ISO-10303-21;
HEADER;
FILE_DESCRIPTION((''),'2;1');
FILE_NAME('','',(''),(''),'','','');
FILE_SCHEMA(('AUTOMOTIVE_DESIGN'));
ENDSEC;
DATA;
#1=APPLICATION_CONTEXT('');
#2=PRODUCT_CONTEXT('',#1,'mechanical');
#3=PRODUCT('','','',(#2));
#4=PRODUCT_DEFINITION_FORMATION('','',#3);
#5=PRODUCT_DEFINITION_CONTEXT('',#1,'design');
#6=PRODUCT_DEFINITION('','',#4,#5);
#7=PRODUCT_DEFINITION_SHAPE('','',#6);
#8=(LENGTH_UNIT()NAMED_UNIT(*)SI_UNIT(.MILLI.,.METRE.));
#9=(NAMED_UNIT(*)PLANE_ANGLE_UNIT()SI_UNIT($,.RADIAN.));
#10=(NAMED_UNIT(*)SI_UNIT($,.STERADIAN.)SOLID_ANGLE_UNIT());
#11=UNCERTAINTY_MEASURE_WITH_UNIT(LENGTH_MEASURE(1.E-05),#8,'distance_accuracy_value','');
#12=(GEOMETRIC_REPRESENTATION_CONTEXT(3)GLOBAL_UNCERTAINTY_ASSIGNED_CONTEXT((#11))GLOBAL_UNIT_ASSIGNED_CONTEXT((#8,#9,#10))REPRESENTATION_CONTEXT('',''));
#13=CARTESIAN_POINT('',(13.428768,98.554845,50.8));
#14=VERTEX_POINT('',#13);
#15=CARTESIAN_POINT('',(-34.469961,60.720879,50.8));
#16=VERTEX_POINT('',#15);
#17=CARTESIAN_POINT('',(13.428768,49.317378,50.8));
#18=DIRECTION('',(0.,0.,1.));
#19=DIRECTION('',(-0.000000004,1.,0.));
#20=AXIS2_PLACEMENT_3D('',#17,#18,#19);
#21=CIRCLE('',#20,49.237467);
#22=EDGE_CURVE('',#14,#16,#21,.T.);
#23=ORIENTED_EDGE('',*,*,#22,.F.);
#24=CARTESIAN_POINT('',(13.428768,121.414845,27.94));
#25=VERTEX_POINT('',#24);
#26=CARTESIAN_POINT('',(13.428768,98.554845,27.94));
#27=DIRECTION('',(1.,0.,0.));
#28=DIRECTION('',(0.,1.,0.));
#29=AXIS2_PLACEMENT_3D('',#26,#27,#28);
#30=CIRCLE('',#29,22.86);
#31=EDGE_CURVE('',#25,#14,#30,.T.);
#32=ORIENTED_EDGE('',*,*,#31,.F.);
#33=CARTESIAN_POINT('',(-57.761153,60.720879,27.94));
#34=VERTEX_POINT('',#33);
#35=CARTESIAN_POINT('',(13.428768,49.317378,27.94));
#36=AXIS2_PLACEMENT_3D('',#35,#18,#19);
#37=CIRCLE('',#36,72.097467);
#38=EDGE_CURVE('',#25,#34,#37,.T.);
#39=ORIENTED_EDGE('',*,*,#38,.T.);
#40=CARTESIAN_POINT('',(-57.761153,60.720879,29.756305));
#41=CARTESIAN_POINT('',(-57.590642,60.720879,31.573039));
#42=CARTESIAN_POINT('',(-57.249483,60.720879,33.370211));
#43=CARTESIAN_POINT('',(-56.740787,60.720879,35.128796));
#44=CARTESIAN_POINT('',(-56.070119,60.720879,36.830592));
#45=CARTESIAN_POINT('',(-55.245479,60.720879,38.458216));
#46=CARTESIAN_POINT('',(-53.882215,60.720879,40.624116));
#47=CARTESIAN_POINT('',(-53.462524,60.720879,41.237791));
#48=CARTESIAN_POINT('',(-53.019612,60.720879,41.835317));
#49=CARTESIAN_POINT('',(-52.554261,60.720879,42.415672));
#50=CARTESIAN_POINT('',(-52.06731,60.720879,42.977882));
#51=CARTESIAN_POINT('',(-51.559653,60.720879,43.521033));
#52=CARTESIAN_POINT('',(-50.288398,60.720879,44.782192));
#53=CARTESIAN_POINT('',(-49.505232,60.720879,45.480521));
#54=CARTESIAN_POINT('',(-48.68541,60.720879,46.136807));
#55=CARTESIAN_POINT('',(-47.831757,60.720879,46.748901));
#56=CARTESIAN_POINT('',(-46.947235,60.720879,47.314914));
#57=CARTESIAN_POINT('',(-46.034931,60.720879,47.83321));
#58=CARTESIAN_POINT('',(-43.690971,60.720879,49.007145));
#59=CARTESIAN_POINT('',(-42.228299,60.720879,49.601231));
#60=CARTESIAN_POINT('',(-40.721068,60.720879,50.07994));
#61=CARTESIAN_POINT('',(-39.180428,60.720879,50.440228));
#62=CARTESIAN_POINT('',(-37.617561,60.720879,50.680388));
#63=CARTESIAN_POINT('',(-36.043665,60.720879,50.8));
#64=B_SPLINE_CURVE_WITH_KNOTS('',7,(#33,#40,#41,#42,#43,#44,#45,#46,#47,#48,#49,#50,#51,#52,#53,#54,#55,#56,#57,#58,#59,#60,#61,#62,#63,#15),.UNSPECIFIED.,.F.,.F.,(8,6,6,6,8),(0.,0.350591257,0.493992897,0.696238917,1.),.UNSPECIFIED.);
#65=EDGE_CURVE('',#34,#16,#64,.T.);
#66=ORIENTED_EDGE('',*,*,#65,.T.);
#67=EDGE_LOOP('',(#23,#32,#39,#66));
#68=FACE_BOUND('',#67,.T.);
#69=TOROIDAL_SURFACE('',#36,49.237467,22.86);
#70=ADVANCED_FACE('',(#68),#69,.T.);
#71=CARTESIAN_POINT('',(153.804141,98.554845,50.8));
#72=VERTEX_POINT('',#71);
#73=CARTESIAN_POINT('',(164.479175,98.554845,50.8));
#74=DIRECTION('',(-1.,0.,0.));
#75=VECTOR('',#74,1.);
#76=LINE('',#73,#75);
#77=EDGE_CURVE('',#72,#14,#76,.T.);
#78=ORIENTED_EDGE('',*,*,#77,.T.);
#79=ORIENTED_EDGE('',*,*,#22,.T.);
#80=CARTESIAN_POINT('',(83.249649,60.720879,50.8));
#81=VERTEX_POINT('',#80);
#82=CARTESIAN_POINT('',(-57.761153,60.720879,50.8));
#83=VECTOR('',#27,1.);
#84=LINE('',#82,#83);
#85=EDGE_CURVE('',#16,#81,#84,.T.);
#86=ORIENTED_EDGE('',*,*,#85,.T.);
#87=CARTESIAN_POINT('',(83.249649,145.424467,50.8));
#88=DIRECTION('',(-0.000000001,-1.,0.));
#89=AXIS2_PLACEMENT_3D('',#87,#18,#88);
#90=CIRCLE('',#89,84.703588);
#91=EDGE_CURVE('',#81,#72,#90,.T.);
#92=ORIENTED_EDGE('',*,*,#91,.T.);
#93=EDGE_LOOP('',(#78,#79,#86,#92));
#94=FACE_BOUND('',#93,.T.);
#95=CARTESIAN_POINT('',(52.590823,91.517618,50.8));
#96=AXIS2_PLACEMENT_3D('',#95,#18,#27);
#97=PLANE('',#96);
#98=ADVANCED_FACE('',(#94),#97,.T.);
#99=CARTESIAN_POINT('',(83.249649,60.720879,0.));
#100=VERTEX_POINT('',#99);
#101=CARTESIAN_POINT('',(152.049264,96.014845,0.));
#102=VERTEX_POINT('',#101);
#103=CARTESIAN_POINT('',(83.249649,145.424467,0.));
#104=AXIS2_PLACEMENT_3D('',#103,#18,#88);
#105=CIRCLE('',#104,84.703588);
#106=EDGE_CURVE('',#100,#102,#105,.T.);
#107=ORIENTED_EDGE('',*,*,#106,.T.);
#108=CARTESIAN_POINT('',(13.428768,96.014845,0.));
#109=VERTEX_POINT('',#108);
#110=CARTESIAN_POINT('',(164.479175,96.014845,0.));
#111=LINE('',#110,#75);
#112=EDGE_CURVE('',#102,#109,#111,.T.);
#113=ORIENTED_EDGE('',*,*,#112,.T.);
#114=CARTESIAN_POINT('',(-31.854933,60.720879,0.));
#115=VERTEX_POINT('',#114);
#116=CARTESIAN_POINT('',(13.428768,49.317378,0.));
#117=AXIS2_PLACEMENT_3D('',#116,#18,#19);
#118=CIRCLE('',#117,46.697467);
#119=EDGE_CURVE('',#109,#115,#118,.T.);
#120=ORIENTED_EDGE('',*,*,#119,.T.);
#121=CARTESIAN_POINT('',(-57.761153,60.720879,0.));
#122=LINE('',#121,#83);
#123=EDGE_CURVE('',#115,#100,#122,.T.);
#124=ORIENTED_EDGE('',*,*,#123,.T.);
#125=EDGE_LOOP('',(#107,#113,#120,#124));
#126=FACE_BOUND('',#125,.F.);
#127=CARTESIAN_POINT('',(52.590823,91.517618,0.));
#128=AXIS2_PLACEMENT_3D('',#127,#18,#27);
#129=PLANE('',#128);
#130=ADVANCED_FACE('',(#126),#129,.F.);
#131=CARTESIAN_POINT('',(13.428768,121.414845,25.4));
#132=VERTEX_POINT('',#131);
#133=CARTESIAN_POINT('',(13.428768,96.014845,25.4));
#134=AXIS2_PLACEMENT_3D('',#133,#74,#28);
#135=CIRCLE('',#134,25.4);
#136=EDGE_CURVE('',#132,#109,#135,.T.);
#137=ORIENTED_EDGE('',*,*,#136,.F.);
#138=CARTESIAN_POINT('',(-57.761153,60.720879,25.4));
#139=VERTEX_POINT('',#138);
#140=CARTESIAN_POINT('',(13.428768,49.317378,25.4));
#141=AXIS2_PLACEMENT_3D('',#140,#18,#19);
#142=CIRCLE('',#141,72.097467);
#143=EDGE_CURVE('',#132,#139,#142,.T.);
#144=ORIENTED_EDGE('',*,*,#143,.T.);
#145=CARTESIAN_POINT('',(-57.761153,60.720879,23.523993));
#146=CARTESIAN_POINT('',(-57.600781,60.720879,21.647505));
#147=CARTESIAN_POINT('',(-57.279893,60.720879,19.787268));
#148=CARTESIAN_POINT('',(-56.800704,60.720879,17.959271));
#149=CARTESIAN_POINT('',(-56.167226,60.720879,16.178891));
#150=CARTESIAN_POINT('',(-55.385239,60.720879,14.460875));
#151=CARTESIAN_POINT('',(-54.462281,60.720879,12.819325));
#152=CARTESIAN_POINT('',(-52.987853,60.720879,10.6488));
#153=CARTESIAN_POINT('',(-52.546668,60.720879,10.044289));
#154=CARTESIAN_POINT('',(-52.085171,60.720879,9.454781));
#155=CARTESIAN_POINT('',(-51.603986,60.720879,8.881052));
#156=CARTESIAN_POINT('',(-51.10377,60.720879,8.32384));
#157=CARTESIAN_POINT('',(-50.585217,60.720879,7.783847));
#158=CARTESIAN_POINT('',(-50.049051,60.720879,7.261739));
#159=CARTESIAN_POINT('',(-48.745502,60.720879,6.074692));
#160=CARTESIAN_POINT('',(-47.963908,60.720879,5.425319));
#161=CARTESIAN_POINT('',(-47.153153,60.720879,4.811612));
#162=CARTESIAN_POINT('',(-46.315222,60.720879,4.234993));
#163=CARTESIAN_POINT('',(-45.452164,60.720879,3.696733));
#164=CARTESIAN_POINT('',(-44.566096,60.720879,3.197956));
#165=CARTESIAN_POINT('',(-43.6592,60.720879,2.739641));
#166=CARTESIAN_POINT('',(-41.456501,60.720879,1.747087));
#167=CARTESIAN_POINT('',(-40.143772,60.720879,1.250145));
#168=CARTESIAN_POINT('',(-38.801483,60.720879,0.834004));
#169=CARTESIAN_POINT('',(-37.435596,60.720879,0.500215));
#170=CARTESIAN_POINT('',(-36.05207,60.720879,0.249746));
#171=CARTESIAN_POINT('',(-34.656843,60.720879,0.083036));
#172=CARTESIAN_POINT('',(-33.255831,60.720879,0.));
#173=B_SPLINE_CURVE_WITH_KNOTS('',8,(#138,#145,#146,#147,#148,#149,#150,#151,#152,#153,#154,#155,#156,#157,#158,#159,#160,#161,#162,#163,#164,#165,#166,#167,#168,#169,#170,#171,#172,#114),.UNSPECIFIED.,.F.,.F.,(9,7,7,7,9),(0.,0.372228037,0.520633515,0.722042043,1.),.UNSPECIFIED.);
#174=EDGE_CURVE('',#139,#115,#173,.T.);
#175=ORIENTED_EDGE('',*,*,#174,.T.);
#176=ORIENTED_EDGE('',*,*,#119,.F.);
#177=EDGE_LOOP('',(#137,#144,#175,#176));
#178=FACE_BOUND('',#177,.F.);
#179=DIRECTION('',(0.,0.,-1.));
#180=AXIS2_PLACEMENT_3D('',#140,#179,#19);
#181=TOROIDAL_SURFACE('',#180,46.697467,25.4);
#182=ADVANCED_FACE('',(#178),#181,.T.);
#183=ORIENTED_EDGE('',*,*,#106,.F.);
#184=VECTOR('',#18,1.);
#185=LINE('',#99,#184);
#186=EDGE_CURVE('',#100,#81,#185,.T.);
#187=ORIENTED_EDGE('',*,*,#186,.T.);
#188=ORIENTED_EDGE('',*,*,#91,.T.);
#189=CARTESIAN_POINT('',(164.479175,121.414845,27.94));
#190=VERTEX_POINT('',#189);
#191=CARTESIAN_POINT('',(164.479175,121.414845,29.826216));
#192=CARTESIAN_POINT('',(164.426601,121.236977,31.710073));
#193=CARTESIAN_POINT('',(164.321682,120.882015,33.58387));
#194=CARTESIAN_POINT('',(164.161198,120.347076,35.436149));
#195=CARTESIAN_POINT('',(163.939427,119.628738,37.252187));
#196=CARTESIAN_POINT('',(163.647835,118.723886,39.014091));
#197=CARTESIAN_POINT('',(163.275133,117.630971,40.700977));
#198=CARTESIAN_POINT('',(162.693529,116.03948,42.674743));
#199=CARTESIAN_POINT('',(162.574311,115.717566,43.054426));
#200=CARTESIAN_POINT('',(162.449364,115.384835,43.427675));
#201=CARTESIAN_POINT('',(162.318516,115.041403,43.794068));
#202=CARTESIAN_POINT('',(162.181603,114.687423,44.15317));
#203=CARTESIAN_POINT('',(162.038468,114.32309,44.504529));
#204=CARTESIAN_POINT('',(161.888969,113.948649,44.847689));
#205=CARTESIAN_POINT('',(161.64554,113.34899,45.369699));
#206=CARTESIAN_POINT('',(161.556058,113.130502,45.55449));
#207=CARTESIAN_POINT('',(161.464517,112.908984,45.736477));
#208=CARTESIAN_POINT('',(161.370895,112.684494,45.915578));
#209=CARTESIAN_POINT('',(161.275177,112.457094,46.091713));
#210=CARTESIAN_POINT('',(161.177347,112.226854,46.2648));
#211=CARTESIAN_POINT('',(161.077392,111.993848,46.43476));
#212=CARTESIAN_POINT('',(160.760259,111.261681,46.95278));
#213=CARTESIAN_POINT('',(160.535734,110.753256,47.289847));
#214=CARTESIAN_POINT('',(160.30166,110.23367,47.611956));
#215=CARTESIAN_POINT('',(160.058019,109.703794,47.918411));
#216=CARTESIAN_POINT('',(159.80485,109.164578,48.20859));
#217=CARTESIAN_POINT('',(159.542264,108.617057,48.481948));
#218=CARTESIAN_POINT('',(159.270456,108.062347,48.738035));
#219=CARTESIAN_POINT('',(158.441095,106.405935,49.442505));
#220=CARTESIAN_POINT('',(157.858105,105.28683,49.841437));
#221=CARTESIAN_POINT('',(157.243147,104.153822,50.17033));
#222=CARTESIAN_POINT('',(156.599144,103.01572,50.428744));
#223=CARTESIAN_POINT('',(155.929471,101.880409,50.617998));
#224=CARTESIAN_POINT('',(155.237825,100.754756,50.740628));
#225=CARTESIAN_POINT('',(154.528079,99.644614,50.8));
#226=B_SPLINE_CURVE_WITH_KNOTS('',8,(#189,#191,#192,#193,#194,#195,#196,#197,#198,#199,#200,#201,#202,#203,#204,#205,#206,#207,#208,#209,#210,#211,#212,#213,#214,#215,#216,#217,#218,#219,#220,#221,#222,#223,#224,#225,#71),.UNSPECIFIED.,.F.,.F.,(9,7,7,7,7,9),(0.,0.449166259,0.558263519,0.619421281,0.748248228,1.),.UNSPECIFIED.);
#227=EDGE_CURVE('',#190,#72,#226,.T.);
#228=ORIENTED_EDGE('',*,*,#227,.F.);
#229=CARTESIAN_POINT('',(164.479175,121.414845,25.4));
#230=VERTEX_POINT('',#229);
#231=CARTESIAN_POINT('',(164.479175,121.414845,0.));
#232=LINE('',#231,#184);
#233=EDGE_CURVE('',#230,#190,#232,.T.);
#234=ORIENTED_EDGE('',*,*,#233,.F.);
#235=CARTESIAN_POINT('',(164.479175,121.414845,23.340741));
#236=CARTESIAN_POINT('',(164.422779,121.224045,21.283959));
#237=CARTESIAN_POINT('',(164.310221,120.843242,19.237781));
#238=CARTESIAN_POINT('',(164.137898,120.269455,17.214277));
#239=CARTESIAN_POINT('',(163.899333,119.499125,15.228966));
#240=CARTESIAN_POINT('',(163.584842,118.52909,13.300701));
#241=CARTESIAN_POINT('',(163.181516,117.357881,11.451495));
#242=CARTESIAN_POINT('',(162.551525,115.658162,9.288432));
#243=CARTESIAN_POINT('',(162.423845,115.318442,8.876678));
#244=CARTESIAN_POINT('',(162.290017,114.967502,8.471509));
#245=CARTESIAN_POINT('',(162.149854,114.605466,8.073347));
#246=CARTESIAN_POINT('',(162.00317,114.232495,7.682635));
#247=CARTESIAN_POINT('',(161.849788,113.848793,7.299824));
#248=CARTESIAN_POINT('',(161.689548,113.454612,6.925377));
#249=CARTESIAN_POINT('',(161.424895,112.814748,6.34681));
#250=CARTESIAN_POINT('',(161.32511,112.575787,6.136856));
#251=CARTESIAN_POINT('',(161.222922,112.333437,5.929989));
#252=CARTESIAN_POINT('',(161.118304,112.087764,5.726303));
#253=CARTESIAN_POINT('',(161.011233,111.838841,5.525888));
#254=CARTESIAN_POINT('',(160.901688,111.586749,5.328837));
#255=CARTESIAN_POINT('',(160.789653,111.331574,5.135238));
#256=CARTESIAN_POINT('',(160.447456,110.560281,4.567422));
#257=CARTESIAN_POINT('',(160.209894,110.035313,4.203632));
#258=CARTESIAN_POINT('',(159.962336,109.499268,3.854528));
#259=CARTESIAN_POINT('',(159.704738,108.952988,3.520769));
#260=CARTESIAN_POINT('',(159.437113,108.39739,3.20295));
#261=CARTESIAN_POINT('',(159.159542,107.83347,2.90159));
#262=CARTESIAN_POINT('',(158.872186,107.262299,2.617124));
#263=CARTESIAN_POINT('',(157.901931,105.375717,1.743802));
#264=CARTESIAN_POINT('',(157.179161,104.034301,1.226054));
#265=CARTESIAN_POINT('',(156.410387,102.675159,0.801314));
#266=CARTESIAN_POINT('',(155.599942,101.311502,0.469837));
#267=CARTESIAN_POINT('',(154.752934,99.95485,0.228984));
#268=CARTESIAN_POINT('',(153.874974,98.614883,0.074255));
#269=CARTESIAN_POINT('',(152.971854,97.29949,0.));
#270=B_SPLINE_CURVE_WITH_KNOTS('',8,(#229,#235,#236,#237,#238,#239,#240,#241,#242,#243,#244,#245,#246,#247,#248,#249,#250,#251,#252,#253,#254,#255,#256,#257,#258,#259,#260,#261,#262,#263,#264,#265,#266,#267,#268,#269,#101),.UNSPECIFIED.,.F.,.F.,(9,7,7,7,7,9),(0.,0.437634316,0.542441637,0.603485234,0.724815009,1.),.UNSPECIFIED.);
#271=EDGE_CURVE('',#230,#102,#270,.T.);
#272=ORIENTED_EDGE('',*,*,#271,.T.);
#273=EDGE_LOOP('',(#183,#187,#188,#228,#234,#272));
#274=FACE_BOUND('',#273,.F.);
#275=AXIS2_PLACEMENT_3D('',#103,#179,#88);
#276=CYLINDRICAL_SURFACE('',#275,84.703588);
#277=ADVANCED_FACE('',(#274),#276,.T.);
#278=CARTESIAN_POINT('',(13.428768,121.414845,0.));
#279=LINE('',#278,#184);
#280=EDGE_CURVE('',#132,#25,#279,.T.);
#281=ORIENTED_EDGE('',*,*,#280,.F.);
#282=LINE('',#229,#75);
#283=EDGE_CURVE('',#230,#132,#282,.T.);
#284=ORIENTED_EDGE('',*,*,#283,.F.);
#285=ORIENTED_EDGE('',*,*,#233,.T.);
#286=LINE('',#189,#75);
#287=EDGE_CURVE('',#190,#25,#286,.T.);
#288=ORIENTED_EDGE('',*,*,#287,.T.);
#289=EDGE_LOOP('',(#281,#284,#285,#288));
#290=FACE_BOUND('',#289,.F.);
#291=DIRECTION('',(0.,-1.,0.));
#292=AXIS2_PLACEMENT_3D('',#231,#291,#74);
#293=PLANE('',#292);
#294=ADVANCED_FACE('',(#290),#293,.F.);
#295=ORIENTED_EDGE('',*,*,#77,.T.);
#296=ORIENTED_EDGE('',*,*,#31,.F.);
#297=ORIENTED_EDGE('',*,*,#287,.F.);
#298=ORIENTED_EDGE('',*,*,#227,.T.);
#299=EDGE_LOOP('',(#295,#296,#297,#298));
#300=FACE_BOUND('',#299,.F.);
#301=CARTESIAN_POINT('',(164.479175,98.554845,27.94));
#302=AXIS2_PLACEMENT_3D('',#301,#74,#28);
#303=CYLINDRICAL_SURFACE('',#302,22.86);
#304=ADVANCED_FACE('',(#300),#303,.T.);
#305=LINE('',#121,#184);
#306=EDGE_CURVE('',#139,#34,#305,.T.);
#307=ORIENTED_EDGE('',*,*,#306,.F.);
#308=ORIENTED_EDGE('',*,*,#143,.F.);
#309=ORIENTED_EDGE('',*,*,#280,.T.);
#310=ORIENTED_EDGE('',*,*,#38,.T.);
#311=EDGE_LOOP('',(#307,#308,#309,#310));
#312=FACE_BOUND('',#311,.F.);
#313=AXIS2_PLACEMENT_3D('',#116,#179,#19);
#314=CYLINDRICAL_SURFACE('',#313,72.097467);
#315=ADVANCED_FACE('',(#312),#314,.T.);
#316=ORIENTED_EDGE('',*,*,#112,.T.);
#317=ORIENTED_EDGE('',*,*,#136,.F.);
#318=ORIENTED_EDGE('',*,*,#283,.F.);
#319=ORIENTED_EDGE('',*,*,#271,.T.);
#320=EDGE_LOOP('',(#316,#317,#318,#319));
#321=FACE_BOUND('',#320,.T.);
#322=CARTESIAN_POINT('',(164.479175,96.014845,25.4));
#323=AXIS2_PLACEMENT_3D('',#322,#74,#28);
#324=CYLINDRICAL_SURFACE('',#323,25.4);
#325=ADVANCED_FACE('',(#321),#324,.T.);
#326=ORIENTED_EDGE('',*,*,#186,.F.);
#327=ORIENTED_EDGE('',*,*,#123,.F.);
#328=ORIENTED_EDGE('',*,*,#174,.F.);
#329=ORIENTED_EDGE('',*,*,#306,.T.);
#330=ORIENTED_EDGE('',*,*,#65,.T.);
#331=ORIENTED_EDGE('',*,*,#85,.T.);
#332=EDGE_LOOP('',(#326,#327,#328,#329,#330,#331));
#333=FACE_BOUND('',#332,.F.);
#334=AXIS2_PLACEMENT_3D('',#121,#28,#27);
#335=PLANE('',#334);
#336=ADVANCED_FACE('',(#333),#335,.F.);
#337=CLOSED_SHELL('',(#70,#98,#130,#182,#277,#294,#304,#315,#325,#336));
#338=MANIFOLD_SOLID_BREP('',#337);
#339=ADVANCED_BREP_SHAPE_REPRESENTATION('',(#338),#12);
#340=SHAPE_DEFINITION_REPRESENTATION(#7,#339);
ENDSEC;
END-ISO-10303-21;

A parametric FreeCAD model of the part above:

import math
import FreeCAD as App
import Part
import Sketcher

V = App.Vector
Q = App.Units.Quantity


def edges_at(feature, points):
    """Names of the edges that pass closest to the given points."""
    edges = feature.Shape.Edges
    near = lambda p: min(range(len(edges)), key=lambda i: edges[i].distToShape(Part.Vertex(*p))[0])
    return sorted({f"Edge{near(p) + 1}" for p in points})

doc = App.newDocument("Part")
body = doc.addObject("PartDesign::Body", "Body")

# Sketch on XY plane
sketch1 = body.newObject("Sketcher::SketchObject", "Sketch")
sketch1.AttachmentSupport = (doc.getObject("XY_Plane"), [""])
sketch1.MapMode = "FlatFace"
sketch1.addGeometry([
    Part.ArcOfCircle(Part.Circle(V(13.428768, 49.317378, 0), V(0, 0, 1), 72.097467), math.radians(90), math.radians(170.899433)),
    Part.LineSegment(V(-57.761153, 60.720879, 0), V(83.249649, 60.720879, 0)),
    Part.ArcOfCircle(Part.Circle(V(83.249649, 145.424467, 0), V(0, 0, 1), 84.703588), math.radians(-90), math.radians(-16.466495)),
    Part.LineSegment(V(164.479175, 121.414845, 0), V(13.428768, 121.414845, 0)),
], False)
sketch1.addConstraint([
    Sketcher.Constraint("Coincident", 0, 2, 1, 1),
    Sketcher.Constraint("Tangent", 1, 2, 2, 1),
    Sketcher.Constraint("Coincident", 2, 2, 3, 1),
    Sketcher.Constraint("Tangent", 3, 2, 0, 1),
    Sketcher.Constraint("Horizontal", 1),
    Sketcher.Constraint("Horizontal", 3),
    Sketcher.Constraint("Radius", 2, 84.703588),
    Sketcher.Constraint("Radius", 0, 72.097467),
    Sketcher.Constraint("DistanceY", 0, 3, 0, 2, 11.403501),
    Sketcher.Constraint("DistanceX", 0, 2, 1, 2, 141.010802),
    Sketcher.Constraint("DistanceX", -1, 1, 0, 3, 13.428768),
    Sketcher.Constraint("DistanceY", -1, 1, 0, 3, 49.317378),
])
pad1 = body.newObject("PartDesign::Pad", "Pad")
pad1.Profile = sketch1
pad1.Length = Q("2 in")
doc.recompute()

fillet = body.newObject("PartDesign::Fillet", "Fillet")
fillet.Base = (pad1, edges_at(pad1, [(-33.347, 104.182, 50.8), (88.954, 121.415, 50.8)]))
fillet.Radius = Q("0.9 in")
doc.recompute()

fillet2 = body.newObject("PartDesign::Fillet", "Fillet001")
fillet2.Base = (fillet, edges_at(fillet, [(88.954, 121.415, 0), (-33.347, 104.182, 0)]))
fillet2.Radius = Q("1 in")

doc.recompute()
